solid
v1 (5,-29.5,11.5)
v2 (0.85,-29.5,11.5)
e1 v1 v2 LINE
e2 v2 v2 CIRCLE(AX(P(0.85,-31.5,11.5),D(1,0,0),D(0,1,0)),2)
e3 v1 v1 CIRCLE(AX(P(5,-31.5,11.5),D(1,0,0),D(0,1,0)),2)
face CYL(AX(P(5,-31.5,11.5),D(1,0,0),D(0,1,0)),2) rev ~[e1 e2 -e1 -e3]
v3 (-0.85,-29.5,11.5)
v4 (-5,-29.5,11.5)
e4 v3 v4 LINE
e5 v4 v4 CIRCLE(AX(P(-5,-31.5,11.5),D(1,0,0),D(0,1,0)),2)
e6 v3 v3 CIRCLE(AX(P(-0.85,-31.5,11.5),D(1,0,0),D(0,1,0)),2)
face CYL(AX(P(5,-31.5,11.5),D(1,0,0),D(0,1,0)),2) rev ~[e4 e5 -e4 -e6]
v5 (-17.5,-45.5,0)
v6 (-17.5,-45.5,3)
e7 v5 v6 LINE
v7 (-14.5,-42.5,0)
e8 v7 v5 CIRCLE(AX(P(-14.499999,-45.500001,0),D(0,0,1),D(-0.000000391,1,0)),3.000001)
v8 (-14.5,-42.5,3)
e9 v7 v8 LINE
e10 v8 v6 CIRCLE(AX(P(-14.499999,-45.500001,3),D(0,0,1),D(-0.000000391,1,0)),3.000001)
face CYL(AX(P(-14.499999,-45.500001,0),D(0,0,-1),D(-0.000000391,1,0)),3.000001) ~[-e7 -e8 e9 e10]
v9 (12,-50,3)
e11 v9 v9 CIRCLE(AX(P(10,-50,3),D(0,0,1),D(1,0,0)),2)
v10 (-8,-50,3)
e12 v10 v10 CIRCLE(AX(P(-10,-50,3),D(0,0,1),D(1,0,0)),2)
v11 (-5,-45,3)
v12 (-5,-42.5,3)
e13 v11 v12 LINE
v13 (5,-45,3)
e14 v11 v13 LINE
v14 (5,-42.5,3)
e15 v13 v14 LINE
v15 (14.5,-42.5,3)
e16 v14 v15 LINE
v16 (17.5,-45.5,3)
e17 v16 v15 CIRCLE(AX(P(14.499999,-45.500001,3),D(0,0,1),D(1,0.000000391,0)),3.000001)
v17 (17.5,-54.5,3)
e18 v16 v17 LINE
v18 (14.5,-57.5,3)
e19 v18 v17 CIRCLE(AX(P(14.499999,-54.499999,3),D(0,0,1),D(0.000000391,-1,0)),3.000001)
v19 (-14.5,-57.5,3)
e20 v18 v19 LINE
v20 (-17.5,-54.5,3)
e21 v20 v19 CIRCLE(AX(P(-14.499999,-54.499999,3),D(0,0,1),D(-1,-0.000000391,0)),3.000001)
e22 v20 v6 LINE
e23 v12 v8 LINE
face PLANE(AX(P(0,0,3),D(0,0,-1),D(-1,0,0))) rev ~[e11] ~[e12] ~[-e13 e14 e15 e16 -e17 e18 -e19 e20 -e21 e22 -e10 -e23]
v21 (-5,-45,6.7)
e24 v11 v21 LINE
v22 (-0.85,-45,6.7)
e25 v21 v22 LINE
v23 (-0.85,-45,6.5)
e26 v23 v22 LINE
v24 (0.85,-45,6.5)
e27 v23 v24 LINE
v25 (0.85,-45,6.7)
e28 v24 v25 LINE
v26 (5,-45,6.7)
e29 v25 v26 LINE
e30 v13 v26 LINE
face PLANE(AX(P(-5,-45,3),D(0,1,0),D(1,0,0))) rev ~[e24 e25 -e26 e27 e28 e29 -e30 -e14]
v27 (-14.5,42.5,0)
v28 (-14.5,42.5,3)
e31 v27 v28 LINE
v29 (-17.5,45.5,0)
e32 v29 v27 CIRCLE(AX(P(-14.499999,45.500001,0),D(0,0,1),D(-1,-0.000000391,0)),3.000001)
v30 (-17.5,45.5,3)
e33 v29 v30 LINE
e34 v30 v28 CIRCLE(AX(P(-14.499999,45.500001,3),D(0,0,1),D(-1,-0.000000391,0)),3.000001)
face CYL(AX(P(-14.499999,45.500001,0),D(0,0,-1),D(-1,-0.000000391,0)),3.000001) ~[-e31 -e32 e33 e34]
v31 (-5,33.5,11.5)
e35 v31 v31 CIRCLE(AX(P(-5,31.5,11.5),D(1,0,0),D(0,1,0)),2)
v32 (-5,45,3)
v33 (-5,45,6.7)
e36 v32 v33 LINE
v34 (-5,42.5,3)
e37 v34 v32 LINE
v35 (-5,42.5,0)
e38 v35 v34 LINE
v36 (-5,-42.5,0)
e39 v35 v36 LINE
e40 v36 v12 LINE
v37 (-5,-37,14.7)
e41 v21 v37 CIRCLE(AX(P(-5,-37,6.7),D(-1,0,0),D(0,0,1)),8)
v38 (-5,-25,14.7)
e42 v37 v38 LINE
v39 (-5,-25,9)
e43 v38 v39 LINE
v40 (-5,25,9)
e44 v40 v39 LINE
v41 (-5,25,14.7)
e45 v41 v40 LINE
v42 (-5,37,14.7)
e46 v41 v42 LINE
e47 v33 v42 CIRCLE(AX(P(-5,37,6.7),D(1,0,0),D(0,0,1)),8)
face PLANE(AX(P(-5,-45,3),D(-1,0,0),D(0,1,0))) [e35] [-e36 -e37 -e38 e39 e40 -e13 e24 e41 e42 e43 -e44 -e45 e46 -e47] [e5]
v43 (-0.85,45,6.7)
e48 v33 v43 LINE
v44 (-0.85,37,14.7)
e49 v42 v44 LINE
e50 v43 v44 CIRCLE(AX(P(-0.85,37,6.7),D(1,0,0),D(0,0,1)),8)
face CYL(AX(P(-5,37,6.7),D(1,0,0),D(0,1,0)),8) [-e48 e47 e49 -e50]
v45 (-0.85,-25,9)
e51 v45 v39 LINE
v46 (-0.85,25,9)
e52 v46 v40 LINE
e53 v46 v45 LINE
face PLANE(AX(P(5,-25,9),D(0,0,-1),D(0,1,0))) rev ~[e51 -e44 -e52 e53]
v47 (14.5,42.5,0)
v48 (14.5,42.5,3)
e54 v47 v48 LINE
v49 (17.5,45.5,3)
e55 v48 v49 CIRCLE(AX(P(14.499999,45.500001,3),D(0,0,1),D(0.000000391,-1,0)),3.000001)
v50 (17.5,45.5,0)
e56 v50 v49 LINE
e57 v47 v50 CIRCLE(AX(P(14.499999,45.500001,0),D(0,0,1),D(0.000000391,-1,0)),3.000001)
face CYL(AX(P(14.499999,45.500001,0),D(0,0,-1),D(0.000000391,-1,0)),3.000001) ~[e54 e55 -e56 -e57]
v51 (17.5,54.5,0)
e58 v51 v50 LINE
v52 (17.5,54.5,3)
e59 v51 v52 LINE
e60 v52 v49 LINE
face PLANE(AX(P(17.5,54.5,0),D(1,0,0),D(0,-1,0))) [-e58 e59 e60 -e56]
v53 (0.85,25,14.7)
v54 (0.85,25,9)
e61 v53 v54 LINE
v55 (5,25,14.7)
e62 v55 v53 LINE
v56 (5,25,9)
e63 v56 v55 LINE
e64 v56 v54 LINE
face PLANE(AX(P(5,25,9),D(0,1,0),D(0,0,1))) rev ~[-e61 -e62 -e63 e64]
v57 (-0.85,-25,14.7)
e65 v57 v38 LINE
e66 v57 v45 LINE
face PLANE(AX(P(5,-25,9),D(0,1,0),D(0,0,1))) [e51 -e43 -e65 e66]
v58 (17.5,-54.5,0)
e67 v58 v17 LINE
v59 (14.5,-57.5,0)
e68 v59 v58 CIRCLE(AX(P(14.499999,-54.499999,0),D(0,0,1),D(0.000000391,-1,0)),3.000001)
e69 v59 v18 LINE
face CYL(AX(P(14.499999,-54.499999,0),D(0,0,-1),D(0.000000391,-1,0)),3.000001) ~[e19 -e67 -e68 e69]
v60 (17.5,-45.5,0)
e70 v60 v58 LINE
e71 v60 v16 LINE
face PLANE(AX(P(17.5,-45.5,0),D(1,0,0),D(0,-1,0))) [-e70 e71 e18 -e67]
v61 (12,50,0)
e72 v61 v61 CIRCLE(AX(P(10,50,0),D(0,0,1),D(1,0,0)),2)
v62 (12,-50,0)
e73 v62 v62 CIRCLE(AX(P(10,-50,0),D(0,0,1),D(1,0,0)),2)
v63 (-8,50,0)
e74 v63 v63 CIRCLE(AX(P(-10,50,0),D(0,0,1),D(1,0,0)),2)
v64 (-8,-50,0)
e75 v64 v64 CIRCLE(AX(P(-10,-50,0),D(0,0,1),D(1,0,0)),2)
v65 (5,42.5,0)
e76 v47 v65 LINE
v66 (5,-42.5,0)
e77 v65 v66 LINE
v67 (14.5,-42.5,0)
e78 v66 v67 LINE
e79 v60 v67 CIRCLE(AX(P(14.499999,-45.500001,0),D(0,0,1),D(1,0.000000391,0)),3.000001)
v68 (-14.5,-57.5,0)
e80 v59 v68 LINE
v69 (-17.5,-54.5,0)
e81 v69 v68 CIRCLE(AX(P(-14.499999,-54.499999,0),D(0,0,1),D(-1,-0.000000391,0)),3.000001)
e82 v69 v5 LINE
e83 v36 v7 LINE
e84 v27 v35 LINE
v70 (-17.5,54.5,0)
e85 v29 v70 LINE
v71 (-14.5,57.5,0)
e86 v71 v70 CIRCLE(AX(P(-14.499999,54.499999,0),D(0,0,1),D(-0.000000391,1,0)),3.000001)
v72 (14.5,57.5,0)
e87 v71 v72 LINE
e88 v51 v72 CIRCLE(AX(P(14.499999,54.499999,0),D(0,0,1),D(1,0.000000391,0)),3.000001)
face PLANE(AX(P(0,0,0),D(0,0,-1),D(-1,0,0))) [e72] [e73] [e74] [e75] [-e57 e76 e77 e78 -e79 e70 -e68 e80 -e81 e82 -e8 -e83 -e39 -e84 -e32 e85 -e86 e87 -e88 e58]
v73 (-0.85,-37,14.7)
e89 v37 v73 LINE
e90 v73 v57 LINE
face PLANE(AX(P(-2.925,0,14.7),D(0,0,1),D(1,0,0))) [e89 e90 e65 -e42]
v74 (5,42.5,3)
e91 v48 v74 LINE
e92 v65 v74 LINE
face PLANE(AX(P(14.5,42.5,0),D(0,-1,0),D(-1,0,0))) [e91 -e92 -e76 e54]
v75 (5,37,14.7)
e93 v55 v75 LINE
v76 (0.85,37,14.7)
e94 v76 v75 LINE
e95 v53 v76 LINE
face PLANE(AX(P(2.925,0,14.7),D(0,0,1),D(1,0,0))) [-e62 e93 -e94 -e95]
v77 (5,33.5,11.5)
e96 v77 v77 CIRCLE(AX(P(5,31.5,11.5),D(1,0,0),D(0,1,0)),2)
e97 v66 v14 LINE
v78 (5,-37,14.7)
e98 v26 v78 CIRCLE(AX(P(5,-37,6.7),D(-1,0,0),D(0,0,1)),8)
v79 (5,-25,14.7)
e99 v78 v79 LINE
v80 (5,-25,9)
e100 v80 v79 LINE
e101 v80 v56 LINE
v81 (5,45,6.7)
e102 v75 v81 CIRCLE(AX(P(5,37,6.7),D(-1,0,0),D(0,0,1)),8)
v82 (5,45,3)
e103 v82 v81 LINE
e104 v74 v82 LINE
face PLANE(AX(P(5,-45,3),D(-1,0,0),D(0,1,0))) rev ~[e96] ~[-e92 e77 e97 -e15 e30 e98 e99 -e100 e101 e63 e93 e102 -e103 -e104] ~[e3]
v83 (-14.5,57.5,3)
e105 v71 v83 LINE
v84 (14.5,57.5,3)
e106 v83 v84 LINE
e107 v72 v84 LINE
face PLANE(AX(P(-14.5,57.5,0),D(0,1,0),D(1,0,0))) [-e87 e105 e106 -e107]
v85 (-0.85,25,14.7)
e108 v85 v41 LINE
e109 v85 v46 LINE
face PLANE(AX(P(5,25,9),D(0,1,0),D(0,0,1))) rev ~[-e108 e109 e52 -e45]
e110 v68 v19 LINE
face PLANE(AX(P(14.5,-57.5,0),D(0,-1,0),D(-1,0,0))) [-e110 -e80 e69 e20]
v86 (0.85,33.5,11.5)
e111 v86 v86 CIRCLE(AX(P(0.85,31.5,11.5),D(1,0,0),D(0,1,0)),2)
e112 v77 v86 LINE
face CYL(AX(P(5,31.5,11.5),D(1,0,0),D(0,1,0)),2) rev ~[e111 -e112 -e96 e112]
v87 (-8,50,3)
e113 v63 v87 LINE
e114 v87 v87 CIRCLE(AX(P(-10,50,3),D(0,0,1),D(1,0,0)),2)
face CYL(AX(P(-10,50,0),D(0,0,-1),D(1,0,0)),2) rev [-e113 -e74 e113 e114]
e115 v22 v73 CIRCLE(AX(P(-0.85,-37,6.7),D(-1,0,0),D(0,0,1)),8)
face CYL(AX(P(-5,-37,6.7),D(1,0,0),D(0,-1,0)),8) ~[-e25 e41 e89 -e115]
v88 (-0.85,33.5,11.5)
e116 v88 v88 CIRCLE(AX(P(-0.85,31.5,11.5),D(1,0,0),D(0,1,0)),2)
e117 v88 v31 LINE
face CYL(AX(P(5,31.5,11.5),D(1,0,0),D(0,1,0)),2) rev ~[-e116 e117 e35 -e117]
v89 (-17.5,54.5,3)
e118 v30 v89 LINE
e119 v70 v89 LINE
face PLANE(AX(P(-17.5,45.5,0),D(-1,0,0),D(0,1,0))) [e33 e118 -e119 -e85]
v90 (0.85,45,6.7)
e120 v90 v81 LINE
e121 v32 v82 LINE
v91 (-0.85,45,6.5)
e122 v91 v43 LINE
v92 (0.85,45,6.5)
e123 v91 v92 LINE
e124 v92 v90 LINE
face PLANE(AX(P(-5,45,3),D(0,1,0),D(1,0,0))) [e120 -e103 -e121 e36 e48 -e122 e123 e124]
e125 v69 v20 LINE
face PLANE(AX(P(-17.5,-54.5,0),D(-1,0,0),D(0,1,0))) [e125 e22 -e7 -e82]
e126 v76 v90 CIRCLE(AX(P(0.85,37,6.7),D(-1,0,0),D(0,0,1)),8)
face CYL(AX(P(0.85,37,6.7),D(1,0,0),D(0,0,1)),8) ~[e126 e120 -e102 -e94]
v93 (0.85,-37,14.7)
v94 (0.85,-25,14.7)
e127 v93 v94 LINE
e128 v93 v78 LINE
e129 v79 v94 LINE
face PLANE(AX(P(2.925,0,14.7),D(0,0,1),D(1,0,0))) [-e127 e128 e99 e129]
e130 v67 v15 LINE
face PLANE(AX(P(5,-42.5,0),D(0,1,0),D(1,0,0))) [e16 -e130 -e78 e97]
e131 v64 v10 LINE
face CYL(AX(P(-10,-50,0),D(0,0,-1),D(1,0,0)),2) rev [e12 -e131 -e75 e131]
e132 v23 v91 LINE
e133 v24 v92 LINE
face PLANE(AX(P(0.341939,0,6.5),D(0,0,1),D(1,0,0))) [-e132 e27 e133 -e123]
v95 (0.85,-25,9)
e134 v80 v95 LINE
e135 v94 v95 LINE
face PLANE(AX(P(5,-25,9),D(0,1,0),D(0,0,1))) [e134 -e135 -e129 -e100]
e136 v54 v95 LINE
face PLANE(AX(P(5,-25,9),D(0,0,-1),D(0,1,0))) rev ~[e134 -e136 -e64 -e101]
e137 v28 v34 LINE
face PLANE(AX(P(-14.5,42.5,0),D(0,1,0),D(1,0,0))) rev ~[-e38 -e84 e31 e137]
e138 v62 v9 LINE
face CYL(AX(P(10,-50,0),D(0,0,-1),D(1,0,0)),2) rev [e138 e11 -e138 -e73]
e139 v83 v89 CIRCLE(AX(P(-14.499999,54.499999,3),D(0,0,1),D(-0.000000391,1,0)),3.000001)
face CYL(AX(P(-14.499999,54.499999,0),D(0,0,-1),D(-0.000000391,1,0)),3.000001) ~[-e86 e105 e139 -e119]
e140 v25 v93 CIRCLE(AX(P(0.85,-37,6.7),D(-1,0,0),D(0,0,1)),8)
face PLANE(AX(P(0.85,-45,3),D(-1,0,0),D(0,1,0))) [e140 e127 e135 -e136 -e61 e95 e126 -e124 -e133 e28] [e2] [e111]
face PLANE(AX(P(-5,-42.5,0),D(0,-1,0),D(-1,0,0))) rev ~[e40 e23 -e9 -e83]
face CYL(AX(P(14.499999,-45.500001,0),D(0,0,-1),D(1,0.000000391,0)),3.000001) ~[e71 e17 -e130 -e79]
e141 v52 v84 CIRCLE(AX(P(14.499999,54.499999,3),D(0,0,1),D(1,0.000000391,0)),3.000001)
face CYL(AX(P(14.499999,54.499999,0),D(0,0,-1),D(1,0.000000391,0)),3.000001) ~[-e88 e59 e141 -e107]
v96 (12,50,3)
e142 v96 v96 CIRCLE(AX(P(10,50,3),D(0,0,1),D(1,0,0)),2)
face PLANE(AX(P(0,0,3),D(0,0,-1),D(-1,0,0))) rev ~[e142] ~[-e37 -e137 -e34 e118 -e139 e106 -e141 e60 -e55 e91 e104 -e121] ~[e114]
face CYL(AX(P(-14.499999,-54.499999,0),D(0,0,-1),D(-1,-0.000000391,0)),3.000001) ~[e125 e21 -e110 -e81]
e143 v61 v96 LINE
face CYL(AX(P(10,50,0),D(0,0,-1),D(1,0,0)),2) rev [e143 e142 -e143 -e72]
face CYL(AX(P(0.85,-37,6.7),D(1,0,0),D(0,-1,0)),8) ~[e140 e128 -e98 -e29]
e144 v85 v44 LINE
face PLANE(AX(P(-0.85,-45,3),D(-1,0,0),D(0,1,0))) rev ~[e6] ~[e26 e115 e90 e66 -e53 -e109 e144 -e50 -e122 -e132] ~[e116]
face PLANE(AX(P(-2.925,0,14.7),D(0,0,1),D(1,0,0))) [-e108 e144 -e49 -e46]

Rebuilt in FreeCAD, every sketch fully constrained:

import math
import FreeCAD as App
import Part
import Sketcher


def edges_at(feature, points):
    """Names of the edges that pass closest to the given points."""
    edges = feature.Shape.Edges
    near = lambda p: min(range(len(edges)), key=lambda i: edges[i].distToShape(Part.Vertex(*p))[0])
    return sorted({f"Edge{near(p) + 1}" for p in points})


def add_polygon(sketch, points):
    """Adds a closed chain of lines whose ends are joined by coincident constraints."""
    first, n = sketch.GeometryCount, len(points)
    for a, b in zip(points, points[1:] + points[:1]):
        sketch.addGeometry(Part.LineSegment(App.Vector(*a, 0), App.Vector(*b, 0)), False)
    for i in range(n):
        sketch.addConstraint(Sketcher.Constraint("Coincident", first + i, 2, first + (i + 1) % n, 1))

doc = App.newDocument("Part")
body = doc.addObject("PartDesign::Body", "Body")

# Sketch on XY plane
sketch1 = body.newObject("Sketcher::SketchObject", "Sketch")
sketch1.AttachmentSupport = (doc.getObject("XY_Plane"), [""])
sketch1.MapMode = "FlatFace"
sketch1.addGeometry([
    Part.LineSegment(App.Vector(14.5, 57.5, 0), App.Vector(-14.5, 57.5, 0)),  # 0
    Part.ArcOfCircle(Part.Circle(App.Vector(-14.5, 54.5, 0), App.Vector(0, 0, 1), 3), math.radians(90), math.radians(180)),  # 1
    Part.LineSegment(App.Vector(-17.5, 54.5, 0), App.Vector(-17.5, 45.5, 0)),  # 2
    Part.ArcOfCircle(Part.Circle(App.Vector(-14.5, 45.5, 0), App.Vector(0, 0, 1), 3), math.radians(-180), math.radians(-90)),  # 3
    Part.LineSegment(App.Vector(-14.5, 42.5, 0), App.Vector(-5, 42.5, 0)),  # 4
    Part.LineSegment(App.Vector(-5, 42.5, 0), App.Vector(-5, -42.5, 0)),  # 5
    Part.LineSegment(App.Vector(-5, -42.5, 0), App.Vector(-14.5, -42.5, 0)),  # 6
    Part.ArcOfCircle(Part.Circle(App.Vector(-14.5, -45.5, 0), App.Vector(0, 0, 1), 3), math.radians(90), math.radians(180)),  # 7
    Part.LineSegment(App.Vector(-17.5, -45.5, 0), App.Vector(-17.5, -54.5, 0)),  # 8
    Part.ArcOfCircle(Part.Circle(App.Vector(-14.5, -54.5, 0), App.Vector(0, 0, 1), 3), math.radians(-180), math.radians(-90)),  # 9
    Part.LineSegment(App.Vector(-14.5, -57.5, 0), App.Vector(14.5, -57.5, 0)),  # 10
    Part.ArcOfCircle(Part.Circle(App.Vector(14.5, -54.5, 0), App.Vector(0, 0, 1), 3), math.radians(-90), math.radians(0)),  # 11
    Part.LineSegment(App.Vector(17.5, -54.5, 0), App.Vector(17.5, -45.5, 0)),  # 12
    Part.ArcOfCircle(Part.Circle(App.Vector(14.5, -45.5, 0), App.Vector(0, 0, 1), 3), math.radians(0), math.radians(90)),  # 13
    Part.LineSegment(App.Vector(14.5, -42.5, 0), App.Vector(5, -42.5, 0)),  # 14
    Part.LineSegment(App.Vector(5, -42.5, 0), App.Vector(5, 42.5, 0)),  # 15
    Part.LineSegment(App.Vector(5, 42.5, 0), App.Vector(14.5, 42.5, 0)),  # 16
    Part.ArcOfCircle(Part.Circle(App.Vector(14.5, 45.5, 0), App.Vector(0, 0, 1), 3), math.radians(-90), math.radians(0)),  # 17
    Part.LineSegment(App.Vector(17.5, 45.5, 0), App.Vector(17.5, 54.5, 0)),  # 18
    Part.ArcOfCircle(Part.Circle(App.Vector(14.5, 54.5, 0), App.Vector(0, 0, 1), 3), math.radians(0), math.radians(90)),  # 19
    Part.Circle(App.Vector(10, -50, 0), App.Vector(0, 0, 1), 2),  # 20
    Part.Circle(App.Vector(-10, -50, 0), App.Vector(0, 0, 1), 2),  # 21
    Part.Circle(App.Vector(10, 50, 0), App.Vector(0, 0, 1), 2),  # 22
    Part.Circle(App.Vector(-10, 50, 0), App.Vector(0, 0, 1), 2),  # 23
], False)
sketch1.addConstraint([
    Sketcher.Constraint("Tangent", 0, 2, 1, 1),
    Sketcher.Constraint("Tangent", 1, 2, 2, 1),
    Sketcher.Constraint("Tangent", 2, 2, 3, 1),
    Sketcher.Constraint("Tangent", 3, 2, 4, 1),
    Sketcher.Constraint("Coincident", 4, 2, 5, 1),
    Sketcher.Constraint("Coincident", 5, 2, 6, 1),
    Sketcher.Constraint("Tangent", 6, 2, 7, 1),
    Sketcher.Constraint("Tangent", 7, 2, 8, 1),
    Sketcher.Constraint("Tangent", 8, 2, 9, 1),
    Sketcher.Constraint("Tangent", 9, 2, 10, 1),
    Sketcher.Constraint("Tangent", 10, 2, 11, 1),
    Sketcher.Constraint("Tangent", 11, 2, 12, 1),
    Sketcher.Constraint("Tangent", 12, 2, 13, 1),
    Sketcher.Constraint("Tangent", 13, 2, 14, 1),
    Sketcher.Constraint("Coincident", 14, 2, 15, 1),
    Sketcher.Constraint("Coincident", 15, 2, 16, 1),
    Sketcher.Constraint("Tangent", 16, 2, 17, 1),
    Sketcher.Constraint("Tangent", 17, 2, 18, 1),
    Sketcher.Constraint("Tangent", 18, 2, 19, 1),
    Sketcher.Constraint("Tangent", 19, 2, 0, 1),
    Sketcher.Constraint("Horizontal", 0),
    Sketcher.Constraint("Vertical", 2),
    Sketcher.Constraint("Horizontal", 4),
    Sketcher.Constraint("Vertical", 5),
    Sketcher.Constraint("Horizontal", 6),
    Sketcher.Constraint("Vertical", 8),
    Sketcher.Constraint("Horizontal", 10),
    Sketcher.Constraint("Vertical", 12),
    Sketcher.Constraint("Horizontal", 14),
    Sketcher.Constraint("Vertical", 15),
    Sketcher.Constraint("Horizontal", 16),
    Sketcher.Constraint("Vertical", 18),
    Sketcher.Constraint("Equal", 1, 3),
    Sketcher.Constraint("Equal", 3, 7),
    Sketcher.Constraint("Equal", 7, 9),
    Sketcher.Constraint("Equal", 9, 11),
    Sketcher.Constraint("Equal", 11, 13),
    Sketcher.Constraint("Equal", 13, 17),
    Sketcher.Constraint("Equal", 17, 19),
    Sketcher.Constraint("Equal", 20, 21),
    Sketcher.Constraint("Equal", 21, 22),
    Sketcher.Constraint("Equal", 22, 23),
    Sketcher.Constraint("Symmetric", 1, 3, 11, 3, -1, 1),
    Sketcher.Constraint("Symmetric", 7, 3, 17, 3, -1, 1),
    Sketcher.Constraint("Symmetric", 21, 3, 22, 3, -1, 1),
    Sketcher.Constraint("Symmetric", 20, 3, 23, 3, -1, 1),
    Sketcher.Constraint("Symmetric", 4, 2, 14, 2, -1, 1),
    Sketcher.Constraint("Symmetric", 7, 3, 13, 3, -2),
    Sketcher.Constraint("Symmetric", 20, 3, 21, 3, -2),
    Sketcher.Constraint("Diameter", 20, 4.0),
    Sketcher.Constraint("Radius", 1, 3.000001),
    Sketcher.Constraint("DistanceX", 0, 2, 0, 1, 29.0),
    Sketcher.Constraint("DistanceY", 2, 2, 2, 1, 9.0),
    Sketcher.Constraint("DistanceY", 5, 2, 5, 1, 85.0),
    Sketcher.Constraint("DistanceX", 4, 1, 4, 2, 9.5),
    Sketcher.Constraint("DistanceX", -1, 1, 20, 3, 10.0),
    Sketcher.Constraint("DistanceY", 20, 3, -1, 1, 50.0),
])
pad1 = body.newObject("PartDesign::Pad", "Pad")
pad1.Profile = sketch1
pad1.Length = 3

# Sketch on XY plane
sketch2 = body.newObject("Sketcher::SketchObject", "Sketch001")
sketch2.AttachmentSupport = (doc.getObject("XY_Plane"), [""])
sketch2.MapMode = "FlatFace"
sketch2.AttachmentOffset = App.Placement(App.Vector(0, 0, 3), App.Rotation())
add_polygon(sketch2, [(-5, 45), (-5, -45), (-0.8, -45), (-0.8, 45)])  # lines 0-3
add_polygon(sketch2, [(0.8, 45), (0.8, -45), (5, -45), (5, 45)])  # lines 4-7
sketch2.addConstraint([
    Sketcher.Constraint("Vertical", 0),
    Sketcher.Constraint("Horizontal", 1),
    Sketcher.Constraint("Vertical", 2),
    Sketcher.Constraint("Horizontal", 3),
    Sketcher.Constraint("Vertical", 4),
    Sketcher.Constraint("Horizontal", 5),
    Sketcher.Constraint("Vertical", 6),
    Sketcher.Constraint("Horizontal", 7),
    Sketcher.Constraint("Symmetric", 2, 2, 4, 2, -1, 1),
    Sketcher.Constraint("Symmetric", 0, 2, 6, 2, -1, 1),
    Sketcher.Constraint("Horizontal", 1, 2, 4, 2),
    Sketcher.Constraint("DistanceY", 0, 2, 0, 1, 90.0),
    Sketcher.Constraint("DistanceX", 0, 2, -1, 1, 5.0),
    Sketcher.Constraint("DistanceX", 1, 1, 1, 2, 4.15),
])
pad2 = body.newObject("PartDesign::Pad", "Pad001")
pad2.Profile = sketch2
pad2.Length = 11.7

# Sketch on YZ plane
sketch3 = body.newObject("Sketcher::SketchObject", "Sketch002")
sketch3.AttachmentSupport = (doc.getObject("YZ_Plane"), [""])
sketch3.MapMode = "FlatFace"
sketch3.AttachmentOffset = App.Placement(App.Vector(0, 0, 5), App.Rotation())
sketch3.addGeometry(Part.Circle(App.Vector(-31.5, 11.5, 0), App.Vector(0, 0, 1), 2), False)  # 0
sketch3.addGeometry(Part.Circle(App.Vector(31.5, 11.5, 0), App.Vector(0, 0, 1), 2), False)  # 1
add_polygon(sketch3, [(-25, 15), (-25, 9), (25, 9), (25, 15)])  # lines 2-5
sketch3.addConstraint([
    Sketcher.Constraint("Vertical", 2),
    Sketcher.Constraint("Horizontal", 3),
    Sketcher.Constraint("Vertical", 4),
    Sketcher.Constraint("Horizontal", 5),
    Sketcher.Constraint("Equal", 0, 1),
    Sketcher.Constraint("Symmetric", 0, 3, 1, 3, -2),
    Sketcher.Constraint("Diameter", 0, 4.0),
    Sketcher.Constraint("DistanceX", 3, 1, 3, 2, 50.0),
    Sketcher.Constraint("DistanceY", 2, 2, 2, 1, 6.0),
    Sketcher.Constraint("DistanceX", 2, 2, -1, 1, 25.0),
    Sketcher.Constraint("DistanceY", -1, 1, 2, 2, 9.0),
    Sketcher.Constraint("DistanceX", 0, 3, 1, 3, 63.0),
    Sketcher.Constraint("DistanceY", -1, 1, 0, 3, 11.5),
])
pocket1 = body.newObject("PartDesign::Pocket", "Pocket")
pocket1.Profile = sketch3
pocket1.Length = 15

# Sketch on XY plane
sketch4 = body.newObject("Sketcher::SketchObject", "Sketch003")
sketch4.AttachmentSupport = (doc.getObject("XY_Plane"), [""])
sketch4.MapMode = "FlatFace"
sketch4.AttachmentOffset = App.Placement(App.Vector(0, 0, 3), App.Rotation())
add_polygon(sketch4, [(-1.7, 45), (-1.7, -45), (2.4, -45), (2.4, 45)])  # lines 0-3
sketch4.addConstraint([
    Sketcher.Constraint("Vertical", 0),
    Sketcher.Constraint("Horizontal", 1),
    Sketcher.Constraint("Vertical", 2),
    Sketcher.Constraint("Horizontal", 3),
    Sketcher.Constraint("DistanceY", 0, 2, 0, 1, 90.0),
    Sketcher.Constraint("DistanceY", 0, 2, -1, 1, 45.0),
    Sketcher.Constraint("DistanceX", 1, 1, 1, 2, 4.09),
    Sketcher.Constraint("DistanceX", 0, 2, -1, 1, 1.703061),
])
pad3 = body.newObject("PartDesign::Pad", "Pad002")
pad3.Profile = sketch4
pad3.Length = 3.5
doc.recompute()

fillet = body.newObject("PartDesign::Fillet", "Fillet")
fillet.Base = (pad3, edges_at(pad3, [
    (-2.925, -45, 14.7),
    (2.925, -45, 14.7),
    (2.925, 45, 14.7),
    (-2.925, 45, 14.7),
]))
fillet.Radius = 8

doc.recompute()
